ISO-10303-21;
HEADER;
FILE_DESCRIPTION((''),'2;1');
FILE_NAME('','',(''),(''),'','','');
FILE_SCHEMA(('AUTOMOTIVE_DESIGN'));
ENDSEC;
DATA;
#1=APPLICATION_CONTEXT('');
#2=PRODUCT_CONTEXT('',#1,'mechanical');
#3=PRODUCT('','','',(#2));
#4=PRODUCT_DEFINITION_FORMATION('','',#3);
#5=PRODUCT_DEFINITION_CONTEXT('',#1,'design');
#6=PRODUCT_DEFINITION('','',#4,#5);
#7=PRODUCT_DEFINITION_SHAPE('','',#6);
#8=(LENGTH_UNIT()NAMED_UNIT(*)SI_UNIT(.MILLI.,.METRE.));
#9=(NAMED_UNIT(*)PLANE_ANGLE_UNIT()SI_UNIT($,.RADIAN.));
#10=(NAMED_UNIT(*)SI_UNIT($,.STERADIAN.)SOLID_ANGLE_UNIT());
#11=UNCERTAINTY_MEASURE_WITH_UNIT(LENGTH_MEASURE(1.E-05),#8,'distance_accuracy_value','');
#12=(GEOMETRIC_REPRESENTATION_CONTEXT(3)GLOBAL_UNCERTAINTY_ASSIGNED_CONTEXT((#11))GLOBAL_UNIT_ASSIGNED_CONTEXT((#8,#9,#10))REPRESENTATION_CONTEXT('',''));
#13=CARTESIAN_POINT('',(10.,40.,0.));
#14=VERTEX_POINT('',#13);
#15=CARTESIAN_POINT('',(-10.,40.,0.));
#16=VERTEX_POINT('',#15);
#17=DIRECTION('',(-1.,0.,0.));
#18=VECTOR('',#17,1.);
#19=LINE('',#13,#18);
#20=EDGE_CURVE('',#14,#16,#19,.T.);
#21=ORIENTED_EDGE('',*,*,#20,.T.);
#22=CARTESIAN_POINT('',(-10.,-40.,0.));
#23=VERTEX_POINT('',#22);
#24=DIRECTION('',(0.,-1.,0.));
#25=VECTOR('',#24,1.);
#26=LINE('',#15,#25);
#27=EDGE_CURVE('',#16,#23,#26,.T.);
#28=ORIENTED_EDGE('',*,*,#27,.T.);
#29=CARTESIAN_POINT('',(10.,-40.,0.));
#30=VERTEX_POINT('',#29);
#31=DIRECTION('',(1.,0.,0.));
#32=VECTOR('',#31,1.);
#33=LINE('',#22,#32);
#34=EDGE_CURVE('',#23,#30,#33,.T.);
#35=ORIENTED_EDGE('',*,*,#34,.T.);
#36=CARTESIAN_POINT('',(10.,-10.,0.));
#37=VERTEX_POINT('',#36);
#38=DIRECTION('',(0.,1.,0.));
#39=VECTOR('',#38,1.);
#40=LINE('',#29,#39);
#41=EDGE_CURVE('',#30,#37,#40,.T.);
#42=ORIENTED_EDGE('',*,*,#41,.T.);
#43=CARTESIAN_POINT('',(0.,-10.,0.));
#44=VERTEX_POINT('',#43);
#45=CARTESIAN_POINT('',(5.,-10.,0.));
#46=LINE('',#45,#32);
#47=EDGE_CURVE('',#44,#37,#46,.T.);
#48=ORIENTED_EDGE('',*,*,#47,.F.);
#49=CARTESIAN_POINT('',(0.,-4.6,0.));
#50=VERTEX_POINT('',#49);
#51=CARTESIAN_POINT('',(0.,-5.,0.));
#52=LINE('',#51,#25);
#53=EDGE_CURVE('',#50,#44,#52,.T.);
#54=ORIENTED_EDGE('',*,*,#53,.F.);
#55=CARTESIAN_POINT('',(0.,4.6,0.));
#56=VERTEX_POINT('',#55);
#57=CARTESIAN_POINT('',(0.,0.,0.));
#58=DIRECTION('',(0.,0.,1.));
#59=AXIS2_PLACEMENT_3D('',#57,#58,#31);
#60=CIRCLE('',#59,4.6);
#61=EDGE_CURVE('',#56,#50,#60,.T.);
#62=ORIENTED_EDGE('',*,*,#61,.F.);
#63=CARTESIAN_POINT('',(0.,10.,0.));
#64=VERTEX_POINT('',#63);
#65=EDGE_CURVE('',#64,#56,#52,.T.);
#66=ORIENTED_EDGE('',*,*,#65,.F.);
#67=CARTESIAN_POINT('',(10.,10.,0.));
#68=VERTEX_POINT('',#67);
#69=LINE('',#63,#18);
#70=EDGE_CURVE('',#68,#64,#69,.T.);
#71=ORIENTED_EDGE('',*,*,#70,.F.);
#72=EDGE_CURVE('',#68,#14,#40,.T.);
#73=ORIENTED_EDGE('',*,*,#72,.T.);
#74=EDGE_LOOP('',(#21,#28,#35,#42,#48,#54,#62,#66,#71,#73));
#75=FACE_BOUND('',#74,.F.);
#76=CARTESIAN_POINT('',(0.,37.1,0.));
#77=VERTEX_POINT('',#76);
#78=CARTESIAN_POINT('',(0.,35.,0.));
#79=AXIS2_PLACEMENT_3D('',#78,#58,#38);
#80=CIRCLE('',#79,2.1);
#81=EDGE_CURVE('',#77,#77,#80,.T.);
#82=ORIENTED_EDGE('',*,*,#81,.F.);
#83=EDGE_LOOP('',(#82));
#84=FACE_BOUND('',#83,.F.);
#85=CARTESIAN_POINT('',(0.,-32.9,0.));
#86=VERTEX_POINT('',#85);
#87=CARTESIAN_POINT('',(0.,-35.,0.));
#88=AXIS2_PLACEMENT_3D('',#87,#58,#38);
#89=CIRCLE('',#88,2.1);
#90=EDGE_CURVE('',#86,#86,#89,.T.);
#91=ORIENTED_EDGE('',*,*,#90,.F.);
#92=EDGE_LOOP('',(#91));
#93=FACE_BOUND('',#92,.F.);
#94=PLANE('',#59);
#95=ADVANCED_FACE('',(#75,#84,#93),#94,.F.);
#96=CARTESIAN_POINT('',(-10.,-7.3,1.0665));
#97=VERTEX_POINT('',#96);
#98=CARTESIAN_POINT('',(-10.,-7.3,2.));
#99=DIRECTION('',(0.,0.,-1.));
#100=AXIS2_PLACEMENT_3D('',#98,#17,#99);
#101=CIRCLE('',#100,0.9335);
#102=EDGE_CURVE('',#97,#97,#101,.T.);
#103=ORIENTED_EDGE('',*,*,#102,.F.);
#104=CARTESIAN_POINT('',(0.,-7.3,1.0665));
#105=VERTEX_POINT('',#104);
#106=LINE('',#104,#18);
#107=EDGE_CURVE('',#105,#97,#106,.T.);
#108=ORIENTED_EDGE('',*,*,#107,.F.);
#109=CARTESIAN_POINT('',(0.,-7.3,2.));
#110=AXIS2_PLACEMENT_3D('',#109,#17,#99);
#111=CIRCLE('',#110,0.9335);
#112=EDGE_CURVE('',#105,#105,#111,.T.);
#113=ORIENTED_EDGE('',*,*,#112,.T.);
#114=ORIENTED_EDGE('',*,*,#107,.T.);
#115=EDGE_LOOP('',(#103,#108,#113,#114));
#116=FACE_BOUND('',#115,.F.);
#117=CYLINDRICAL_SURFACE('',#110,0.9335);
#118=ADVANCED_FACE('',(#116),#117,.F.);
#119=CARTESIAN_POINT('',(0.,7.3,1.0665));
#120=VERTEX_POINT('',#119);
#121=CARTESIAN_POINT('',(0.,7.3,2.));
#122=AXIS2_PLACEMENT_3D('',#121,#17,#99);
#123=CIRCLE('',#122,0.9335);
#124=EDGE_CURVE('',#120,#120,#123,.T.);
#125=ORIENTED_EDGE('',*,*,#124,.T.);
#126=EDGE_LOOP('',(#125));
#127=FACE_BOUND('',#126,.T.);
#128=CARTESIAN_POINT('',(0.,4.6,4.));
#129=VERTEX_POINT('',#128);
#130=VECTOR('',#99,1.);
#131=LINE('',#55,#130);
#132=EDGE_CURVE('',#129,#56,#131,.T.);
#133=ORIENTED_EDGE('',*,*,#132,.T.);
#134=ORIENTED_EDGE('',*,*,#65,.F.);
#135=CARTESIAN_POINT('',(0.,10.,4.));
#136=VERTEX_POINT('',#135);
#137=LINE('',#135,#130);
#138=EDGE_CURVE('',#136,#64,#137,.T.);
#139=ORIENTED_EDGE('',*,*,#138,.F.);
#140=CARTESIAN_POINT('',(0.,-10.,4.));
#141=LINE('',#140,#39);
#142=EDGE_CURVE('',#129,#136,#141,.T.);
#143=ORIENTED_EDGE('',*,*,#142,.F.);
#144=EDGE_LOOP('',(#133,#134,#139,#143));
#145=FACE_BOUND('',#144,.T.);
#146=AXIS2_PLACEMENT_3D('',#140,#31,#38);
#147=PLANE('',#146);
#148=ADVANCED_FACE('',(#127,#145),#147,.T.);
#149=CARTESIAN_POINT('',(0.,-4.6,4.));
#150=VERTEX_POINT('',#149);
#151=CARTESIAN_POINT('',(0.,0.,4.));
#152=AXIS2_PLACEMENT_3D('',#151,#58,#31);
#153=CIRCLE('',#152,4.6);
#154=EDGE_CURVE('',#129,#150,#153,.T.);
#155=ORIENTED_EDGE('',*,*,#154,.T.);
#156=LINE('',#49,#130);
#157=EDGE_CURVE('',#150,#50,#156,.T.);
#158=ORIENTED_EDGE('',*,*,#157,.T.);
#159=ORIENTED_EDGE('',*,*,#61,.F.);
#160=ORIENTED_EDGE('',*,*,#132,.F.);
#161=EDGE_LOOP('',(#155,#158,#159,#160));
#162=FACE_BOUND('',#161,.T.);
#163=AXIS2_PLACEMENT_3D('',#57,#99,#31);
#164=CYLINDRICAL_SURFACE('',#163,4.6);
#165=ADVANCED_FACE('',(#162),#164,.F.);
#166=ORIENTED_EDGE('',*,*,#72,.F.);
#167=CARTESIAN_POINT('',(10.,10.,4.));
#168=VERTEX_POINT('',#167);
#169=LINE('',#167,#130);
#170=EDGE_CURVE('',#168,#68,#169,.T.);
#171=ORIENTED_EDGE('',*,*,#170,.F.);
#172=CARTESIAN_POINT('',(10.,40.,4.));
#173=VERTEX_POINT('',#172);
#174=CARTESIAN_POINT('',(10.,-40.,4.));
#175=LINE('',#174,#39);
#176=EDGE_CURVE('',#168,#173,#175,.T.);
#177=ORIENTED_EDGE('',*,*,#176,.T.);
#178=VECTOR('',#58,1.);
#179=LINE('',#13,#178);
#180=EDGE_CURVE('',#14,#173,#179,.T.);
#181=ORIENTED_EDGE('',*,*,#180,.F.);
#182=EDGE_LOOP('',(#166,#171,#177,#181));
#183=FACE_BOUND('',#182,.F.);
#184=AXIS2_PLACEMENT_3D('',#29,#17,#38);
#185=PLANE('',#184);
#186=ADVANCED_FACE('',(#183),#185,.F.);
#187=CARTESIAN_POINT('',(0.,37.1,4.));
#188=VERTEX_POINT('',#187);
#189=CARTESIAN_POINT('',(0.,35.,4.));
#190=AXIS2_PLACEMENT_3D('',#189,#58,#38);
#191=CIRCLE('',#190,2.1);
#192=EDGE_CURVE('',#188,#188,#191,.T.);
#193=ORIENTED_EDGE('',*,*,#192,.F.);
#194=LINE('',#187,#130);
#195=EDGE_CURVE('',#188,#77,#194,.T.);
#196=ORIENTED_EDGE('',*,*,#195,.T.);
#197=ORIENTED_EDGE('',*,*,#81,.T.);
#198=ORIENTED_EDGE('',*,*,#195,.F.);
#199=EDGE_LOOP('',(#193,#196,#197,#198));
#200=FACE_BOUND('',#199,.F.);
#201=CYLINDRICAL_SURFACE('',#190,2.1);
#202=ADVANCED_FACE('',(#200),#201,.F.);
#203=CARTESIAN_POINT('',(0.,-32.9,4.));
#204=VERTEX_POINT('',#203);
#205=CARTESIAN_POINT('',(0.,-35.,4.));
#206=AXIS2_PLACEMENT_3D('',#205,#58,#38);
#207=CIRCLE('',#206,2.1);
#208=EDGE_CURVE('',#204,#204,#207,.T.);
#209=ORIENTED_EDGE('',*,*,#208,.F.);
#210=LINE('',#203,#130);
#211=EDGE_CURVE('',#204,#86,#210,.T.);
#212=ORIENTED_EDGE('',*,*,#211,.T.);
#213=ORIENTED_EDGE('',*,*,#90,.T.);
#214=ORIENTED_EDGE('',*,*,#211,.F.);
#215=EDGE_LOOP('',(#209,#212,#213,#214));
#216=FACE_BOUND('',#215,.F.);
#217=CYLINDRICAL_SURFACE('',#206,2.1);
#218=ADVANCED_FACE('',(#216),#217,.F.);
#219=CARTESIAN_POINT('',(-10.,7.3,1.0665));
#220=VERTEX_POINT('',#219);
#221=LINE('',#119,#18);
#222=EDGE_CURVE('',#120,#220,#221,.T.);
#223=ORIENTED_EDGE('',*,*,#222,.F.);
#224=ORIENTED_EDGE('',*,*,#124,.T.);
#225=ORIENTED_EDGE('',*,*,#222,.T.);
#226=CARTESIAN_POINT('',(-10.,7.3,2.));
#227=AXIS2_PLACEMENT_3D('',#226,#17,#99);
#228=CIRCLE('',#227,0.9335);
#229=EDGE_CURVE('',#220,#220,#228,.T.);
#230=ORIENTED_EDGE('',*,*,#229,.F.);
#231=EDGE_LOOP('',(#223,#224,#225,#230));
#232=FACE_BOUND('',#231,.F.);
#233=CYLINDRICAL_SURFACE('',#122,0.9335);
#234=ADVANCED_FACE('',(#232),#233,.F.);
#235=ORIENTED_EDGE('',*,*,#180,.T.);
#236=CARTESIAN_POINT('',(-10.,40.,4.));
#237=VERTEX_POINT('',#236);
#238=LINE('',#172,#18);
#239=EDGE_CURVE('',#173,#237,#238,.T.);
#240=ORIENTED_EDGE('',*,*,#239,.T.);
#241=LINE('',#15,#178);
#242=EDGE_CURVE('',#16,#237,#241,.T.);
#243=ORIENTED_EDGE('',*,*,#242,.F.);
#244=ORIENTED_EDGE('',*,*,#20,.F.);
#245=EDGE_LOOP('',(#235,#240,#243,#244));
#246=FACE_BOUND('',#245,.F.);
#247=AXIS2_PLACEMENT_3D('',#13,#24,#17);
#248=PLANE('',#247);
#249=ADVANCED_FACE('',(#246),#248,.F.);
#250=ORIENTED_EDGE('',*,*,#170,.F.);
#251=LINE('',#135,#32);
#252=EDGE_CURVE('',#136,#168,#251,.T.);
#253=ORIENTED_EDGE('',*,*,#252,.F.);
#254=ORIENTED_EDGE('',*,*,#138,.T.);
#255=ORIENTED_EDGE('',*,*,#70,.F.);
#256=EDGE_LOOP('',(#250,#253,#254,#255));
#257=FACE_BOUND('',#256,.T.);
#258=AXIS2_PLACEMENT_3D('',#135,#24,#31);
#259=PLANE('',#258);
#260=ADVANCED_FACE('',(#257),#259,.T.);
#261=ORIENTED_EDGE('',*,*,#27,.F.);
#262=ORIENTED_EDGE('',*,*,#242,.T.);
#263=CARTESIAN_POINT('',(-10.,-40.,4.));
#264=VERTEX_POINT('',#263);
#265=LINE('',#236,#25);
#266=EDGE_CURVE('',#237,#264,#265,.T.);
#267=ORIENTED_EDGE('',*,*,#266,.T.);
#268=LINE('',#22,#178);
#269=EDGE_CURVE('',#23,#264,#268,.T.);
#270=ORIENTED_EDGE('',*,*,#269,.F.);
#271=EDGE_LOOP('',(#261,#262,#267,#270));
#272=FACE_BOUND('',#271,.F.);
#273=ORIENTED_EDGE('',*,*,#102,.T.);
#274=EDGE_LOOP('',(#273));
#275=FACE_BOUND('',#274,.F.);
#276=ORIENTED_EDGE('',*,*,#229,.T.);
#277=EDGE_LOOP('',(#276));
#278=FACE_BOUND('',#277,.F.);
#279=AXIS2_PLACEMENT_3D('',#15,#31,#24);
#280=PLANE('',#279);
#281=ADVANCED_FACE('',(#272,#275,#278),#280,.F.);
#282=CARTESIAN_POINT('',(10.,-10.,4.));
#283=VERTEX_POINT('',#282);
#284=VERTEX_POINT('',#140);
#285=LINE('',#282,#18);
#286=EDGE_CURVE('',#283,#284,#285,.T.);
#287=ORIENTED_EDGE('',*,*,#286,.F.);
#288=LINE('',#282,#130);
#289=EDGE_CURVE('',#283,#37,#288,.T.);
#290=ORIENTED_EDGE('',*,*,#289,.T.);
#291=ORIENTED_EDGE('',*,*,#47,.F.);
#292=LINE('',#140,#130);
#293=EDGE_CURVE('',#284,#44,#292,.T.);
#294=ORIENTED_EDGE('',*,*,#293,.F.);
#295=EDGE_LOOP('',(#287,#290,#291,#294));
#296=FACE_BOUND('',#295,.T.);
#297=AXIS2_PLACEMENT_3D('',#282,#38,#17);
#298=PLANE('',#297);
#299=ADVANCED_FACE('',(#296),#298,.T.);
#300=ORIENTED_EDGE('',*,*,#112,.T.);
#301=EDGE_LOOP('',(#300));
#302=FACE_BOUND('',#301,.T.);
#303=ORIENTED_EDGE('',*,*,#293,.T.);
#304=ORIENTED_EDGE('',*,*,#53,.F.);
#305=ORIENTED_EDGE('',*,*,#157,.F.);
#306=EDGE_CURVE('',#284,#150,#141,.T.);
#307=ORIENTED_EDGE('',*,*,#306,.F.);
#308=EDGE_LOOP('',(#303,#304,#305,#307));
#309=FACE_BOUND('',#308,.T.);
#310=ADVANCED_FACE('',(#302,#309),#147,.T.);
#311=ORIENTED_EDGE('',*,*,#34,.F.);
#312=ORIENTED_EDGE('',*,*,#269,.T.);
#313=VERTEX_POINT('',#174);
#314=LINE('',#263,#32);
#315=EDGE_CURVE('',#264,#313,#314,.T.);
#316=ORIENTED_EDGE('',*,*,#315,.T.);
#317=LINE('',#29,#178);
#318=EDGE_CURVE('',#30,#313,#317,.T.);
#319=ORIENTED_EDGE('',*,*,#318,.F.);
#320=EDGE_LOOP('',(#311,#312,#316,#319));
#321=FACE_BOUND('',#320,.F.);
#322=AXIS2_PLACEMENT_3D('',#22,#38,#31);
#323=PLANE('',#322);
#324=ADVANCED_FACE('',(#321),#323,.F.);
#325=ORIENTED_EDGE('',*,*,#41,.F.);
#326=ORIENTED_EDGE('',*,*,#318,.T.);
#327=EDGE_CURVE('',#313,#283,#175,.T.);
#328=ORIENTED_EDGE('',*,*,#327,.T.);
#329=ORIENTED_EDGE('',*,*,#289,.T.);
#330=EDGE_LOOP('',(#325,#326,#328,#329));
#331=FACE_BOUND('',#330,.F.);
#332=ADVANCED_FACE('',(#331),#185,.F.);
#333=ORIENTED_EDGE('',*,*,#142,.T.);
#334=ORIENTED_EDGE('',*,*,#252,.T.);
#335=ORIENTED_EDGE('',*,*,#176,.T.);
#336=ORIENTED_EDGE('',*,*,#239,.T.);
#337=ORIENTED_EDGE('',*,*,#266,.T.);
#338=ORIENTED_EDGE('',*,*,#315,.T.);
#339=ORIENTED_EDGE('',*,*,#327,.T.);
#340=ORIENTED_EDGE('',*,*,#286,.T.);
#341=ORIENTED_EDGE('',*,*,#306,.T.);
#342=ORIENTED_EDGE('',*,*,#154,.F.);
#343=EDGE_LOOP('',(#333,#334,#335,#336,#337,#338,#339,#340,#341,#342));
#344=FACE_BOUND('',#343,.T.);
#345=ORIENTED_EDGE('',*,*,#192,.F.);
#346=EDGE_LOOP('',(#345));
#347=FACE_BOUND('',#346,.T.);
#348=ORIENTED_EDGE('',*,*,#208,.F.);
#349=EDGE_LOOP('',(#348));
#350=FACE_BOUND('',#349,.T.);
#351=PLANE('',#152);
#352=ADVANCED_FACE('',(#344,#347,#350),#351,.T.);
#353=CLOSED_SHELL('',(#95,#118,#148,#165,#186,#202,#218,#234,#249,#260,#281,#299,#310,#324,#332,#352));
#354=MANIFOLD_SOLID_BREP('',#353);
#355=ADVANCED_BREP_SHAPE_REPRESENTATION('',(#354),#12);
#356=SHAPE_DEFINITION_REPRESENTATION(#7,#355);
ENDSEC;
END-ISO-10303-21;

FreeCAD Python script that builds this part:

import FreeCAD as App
import Part
import Sketcher

V = App.Vector

doc = App.newDocument("Part")
body = doc.addObject("PartDesign::Body", "Body")

# Sketch on XY plane
sketch1 = body.newObject("Sketcher::SketchObject", "Sketch")
sketch1.AttachmentSupport = (doc.getObject("XY_Plane"), [""])
sketch1.MapMode = "FlatFace"
sketch1.addGeometry(Part.LineSegment(V(-10, 40, 0), V(-10, -40, 0)), False)
sketch1.addGeometry(Part.LineSegment(V(-10, -40, 0), V(10, -40, 0)), False)
sketch1.addGeometry(Part.LineSegment(V(10, -40, 0), V(10, 40, 0)), False)
sketch1.addGeometry(Part.LineSegment(V(10, 40, 0), V(-10, 40, 0)), False)
sketch1.addGeometry(Part.Circle(V(0, 0, 0), V(0, 0, 1), 4.6), False)
sketch1.addConstraint(Sketcher.Constraint("Coincident", 0, 2, 1, 1))
sketch1.addConstraint(Sketcher.Constraint("Coincident", 1, 2, 2, 1))
sketch1.addConstraint(Sketcher.Constraint("Coincident", 2, 2, 3, 1))
sketch1.addConstraint(Sketcher.Constraint("Coincident", 3, 2, 0, 1))
sketch1.addConstraint(Sketcher.Constraint("Vertical", 0))
sketch1.addConstraint(Sketcher.Constraint("Horizontal", 1))
sketch1.addConstraint(Sketcher.Constraint("Vertical", 2))
sketch1.addConstraint(Sketcher.Constraint("Horizontal", 3))
sketch1.addConstraint(Sketcher.Constraint("Coincident", 4, 3, -1, 1))
sketch1.addConstraint(Sketcher.Constraint("Symmetric", 0, 2, 2, 2, -1, 1))
sketch1.addConstraint(Sketcher.Constraint("DistanceX", 0, 2, -1, 1, 10.0))
sketch1.addConstraint(Sketcher.Constraint("Diameter", 4, 9.2))
sketch1.addConstraint(Sketcher.Constraint("DistanceY", 0, 2, 0, 1, 80.0))
pad1 = body.newObject("PartDesign::Pad", "Pad")
pad1.Profile = sketch1
pad1.Length = 4

# Sketch on XY plane
sketch2 = body.newObject("Sketcher::SketchObject", "Sketch001")
sketch2.AttachmentSupport = (doc.getObject("XY_Plane"), [""])
sketch2.MapMode = "FlatFace"
sketch2.AttachmentOffset = App.Placement(V(0, 0, 4), App.Rotation())
sketch2.addGeometry(Part.LineSegment(V(10, 10, 0), V(0, 10, 0)), False)
sketch2.addGeometry(Part.LineSegment(V(0, 10, 0), V(0, -10, 0)), False)
sketch2.addGeometry(Part.LineSegment(V(0, -10, 0), V(10, -10, 0)), False)
sketch2.addGeometry(Part.LineSegment(V(10, -10, 0), V(10, 10, 0)), False)
sketch2.addConstraint(Sketcher.Constraint("Coincident", 0, 2, 1, 1))
sketch2.addConstraint(Sketcher.Constraint("Coincident", 1, 2, 2, 1))
sketch2.addConstraint(Sketcher.Constraint("Coincident", 2, 2, 3, 1))
sketch2.addConstraint(Sketcher.Constraint("Coincident", 3, 2, 0, 1))
sketch2.addConstraint(Sketcher.Constraint("Horizontal", 0))
sketch2.addConstraint(Sketcher.Constraint("Vertical", 1))
sketch2.addConstraint(Sketcher.Constraint("Horizontal", 2))
sketch2.addConstraint(Sketcher.Constraint("Vertical", 3))
sketch2.addConstraint(Sketcher.Constraint("Symmetric", 0, 2, 1, 2, -1, 1))
sketch2.addConstraint(Sketcher.Constraint("DistanceX", 0, 2, 0, 1, 10.0))
sketch2.addConstraint(Sketcher.Constraint("DistanceY", -1, 1, 0, 2, 10.0))
pocket1 = body.newObject("PartDesign::Pocket", "Pocket")
pocket1.Profile = sketch2
pocket1.Type = "UpToFirst"

# Sketch on XY plane
sketch3 = body.newObject("Sketcher::SketchObject", "Sketch002")
sketch3.AttachmentSupport = (doc.getObject("XY_Plane"), [""])
sketch3.MapMode = "FlatFace"
sketch3.AttachmentOffset = App.Placement(V(0, 0, 4), App.Rotation())
sketch3.addGeometry(Part.Circle(V(0, 35, 0), V(0, 0, 1), 2.1), False)
sketch3.addGeometry(Part.Circle(V(0, -35, 0), V(0, 0, 1), 2.1), False)
sketch3.addConstraint(Sketcher.Constraint("Equal", 0, 1))
sketch3.addConstraint(Sketcher.Constraint("Symmetric", 0, 3, 1, 3, -1, 1))
sketch3.addConstraint(Sketcher.Constraint("PointOnObject", 0, 3, -2))
sketch3.addConstraint(Sketcher.Constraint("Diameter", 0, 4.2))
sketch3.addConstraint(Sketcher.Constraint("DistanceY", -1, 1, 0, 3, 35.0))
pocket2 = body.newObject("PartDesign::Pocket", "Pocket001")
pocket2.Profile = sketch3
pocket2.Length = 4

# Sketch on YZ plane
sketch4 = body.newObject("Sketcher::SketchObject", "Sketch003")
sketch4.AttachmentSupport = (doc.getObject("YZ_Plane"), [""])
sketch4.MapMode = "FlatFace"
sketch4.addGeometry(Part.Circle(V(7.3, 2, 0), V(0, 0, 1), 0.9), False)
sketch4.addConstraint(Sketcher.Constraint("Diameter", 0, 1.867))
sketch4.addConstraint(Sketcher.Constraint("DistanceY", -1, 1, 0, 3, 2.0))
sketch4.addConstraint(Sketcher.Constraint("DistanceX", -1, 1, 0, 3, 7.3))
doc.recompute()
hole = body.newObject("PartDesign::Hole", "Hole")
hole.Profile = sketch4
hole.ThreadType = "None"
hole.Diameter = 1.867
hole.DepthType = "Dimension"
hole.Depth = 10
hole.DrillPoint = "Flat"

# Sketch on YZ plane
sketch5 = body.newObject("Sketcher::SketchObject", "Sketch004")
sketch5.AttachmentSupport = (doc.getObject("YZ_Plane"), [""])
sketch5.MapMode = "FlatFace"
sketch5.addGeometry(Part.Circle(V(-7.3, 2, 0), V(0, 0, 1), 0.9), False)
sketch5.addConstraint(Sketcher.Constraint("Diameter", 0, 1.867))
sketch5.addConstraint(Sketcher.Constraint("DistanceY", -1, 1, 0, 3, 2.0))
sketch5.addConstraint(Sketcher.Constraint("DistanceX", 0, 3, -1, 1, 7.3))
doc.recompute()
hole2 = body.newObject("PartDesign::Hole", "Hole001")
hole2.Profile = sketch5
hole2.ThreadType = "None"
hole2.Diameter = 1.867
hole2.DepthType = "Dimension"
hole2.Depth = 10
hole2.DrillPoint = "Flat"

doc.recompute()
